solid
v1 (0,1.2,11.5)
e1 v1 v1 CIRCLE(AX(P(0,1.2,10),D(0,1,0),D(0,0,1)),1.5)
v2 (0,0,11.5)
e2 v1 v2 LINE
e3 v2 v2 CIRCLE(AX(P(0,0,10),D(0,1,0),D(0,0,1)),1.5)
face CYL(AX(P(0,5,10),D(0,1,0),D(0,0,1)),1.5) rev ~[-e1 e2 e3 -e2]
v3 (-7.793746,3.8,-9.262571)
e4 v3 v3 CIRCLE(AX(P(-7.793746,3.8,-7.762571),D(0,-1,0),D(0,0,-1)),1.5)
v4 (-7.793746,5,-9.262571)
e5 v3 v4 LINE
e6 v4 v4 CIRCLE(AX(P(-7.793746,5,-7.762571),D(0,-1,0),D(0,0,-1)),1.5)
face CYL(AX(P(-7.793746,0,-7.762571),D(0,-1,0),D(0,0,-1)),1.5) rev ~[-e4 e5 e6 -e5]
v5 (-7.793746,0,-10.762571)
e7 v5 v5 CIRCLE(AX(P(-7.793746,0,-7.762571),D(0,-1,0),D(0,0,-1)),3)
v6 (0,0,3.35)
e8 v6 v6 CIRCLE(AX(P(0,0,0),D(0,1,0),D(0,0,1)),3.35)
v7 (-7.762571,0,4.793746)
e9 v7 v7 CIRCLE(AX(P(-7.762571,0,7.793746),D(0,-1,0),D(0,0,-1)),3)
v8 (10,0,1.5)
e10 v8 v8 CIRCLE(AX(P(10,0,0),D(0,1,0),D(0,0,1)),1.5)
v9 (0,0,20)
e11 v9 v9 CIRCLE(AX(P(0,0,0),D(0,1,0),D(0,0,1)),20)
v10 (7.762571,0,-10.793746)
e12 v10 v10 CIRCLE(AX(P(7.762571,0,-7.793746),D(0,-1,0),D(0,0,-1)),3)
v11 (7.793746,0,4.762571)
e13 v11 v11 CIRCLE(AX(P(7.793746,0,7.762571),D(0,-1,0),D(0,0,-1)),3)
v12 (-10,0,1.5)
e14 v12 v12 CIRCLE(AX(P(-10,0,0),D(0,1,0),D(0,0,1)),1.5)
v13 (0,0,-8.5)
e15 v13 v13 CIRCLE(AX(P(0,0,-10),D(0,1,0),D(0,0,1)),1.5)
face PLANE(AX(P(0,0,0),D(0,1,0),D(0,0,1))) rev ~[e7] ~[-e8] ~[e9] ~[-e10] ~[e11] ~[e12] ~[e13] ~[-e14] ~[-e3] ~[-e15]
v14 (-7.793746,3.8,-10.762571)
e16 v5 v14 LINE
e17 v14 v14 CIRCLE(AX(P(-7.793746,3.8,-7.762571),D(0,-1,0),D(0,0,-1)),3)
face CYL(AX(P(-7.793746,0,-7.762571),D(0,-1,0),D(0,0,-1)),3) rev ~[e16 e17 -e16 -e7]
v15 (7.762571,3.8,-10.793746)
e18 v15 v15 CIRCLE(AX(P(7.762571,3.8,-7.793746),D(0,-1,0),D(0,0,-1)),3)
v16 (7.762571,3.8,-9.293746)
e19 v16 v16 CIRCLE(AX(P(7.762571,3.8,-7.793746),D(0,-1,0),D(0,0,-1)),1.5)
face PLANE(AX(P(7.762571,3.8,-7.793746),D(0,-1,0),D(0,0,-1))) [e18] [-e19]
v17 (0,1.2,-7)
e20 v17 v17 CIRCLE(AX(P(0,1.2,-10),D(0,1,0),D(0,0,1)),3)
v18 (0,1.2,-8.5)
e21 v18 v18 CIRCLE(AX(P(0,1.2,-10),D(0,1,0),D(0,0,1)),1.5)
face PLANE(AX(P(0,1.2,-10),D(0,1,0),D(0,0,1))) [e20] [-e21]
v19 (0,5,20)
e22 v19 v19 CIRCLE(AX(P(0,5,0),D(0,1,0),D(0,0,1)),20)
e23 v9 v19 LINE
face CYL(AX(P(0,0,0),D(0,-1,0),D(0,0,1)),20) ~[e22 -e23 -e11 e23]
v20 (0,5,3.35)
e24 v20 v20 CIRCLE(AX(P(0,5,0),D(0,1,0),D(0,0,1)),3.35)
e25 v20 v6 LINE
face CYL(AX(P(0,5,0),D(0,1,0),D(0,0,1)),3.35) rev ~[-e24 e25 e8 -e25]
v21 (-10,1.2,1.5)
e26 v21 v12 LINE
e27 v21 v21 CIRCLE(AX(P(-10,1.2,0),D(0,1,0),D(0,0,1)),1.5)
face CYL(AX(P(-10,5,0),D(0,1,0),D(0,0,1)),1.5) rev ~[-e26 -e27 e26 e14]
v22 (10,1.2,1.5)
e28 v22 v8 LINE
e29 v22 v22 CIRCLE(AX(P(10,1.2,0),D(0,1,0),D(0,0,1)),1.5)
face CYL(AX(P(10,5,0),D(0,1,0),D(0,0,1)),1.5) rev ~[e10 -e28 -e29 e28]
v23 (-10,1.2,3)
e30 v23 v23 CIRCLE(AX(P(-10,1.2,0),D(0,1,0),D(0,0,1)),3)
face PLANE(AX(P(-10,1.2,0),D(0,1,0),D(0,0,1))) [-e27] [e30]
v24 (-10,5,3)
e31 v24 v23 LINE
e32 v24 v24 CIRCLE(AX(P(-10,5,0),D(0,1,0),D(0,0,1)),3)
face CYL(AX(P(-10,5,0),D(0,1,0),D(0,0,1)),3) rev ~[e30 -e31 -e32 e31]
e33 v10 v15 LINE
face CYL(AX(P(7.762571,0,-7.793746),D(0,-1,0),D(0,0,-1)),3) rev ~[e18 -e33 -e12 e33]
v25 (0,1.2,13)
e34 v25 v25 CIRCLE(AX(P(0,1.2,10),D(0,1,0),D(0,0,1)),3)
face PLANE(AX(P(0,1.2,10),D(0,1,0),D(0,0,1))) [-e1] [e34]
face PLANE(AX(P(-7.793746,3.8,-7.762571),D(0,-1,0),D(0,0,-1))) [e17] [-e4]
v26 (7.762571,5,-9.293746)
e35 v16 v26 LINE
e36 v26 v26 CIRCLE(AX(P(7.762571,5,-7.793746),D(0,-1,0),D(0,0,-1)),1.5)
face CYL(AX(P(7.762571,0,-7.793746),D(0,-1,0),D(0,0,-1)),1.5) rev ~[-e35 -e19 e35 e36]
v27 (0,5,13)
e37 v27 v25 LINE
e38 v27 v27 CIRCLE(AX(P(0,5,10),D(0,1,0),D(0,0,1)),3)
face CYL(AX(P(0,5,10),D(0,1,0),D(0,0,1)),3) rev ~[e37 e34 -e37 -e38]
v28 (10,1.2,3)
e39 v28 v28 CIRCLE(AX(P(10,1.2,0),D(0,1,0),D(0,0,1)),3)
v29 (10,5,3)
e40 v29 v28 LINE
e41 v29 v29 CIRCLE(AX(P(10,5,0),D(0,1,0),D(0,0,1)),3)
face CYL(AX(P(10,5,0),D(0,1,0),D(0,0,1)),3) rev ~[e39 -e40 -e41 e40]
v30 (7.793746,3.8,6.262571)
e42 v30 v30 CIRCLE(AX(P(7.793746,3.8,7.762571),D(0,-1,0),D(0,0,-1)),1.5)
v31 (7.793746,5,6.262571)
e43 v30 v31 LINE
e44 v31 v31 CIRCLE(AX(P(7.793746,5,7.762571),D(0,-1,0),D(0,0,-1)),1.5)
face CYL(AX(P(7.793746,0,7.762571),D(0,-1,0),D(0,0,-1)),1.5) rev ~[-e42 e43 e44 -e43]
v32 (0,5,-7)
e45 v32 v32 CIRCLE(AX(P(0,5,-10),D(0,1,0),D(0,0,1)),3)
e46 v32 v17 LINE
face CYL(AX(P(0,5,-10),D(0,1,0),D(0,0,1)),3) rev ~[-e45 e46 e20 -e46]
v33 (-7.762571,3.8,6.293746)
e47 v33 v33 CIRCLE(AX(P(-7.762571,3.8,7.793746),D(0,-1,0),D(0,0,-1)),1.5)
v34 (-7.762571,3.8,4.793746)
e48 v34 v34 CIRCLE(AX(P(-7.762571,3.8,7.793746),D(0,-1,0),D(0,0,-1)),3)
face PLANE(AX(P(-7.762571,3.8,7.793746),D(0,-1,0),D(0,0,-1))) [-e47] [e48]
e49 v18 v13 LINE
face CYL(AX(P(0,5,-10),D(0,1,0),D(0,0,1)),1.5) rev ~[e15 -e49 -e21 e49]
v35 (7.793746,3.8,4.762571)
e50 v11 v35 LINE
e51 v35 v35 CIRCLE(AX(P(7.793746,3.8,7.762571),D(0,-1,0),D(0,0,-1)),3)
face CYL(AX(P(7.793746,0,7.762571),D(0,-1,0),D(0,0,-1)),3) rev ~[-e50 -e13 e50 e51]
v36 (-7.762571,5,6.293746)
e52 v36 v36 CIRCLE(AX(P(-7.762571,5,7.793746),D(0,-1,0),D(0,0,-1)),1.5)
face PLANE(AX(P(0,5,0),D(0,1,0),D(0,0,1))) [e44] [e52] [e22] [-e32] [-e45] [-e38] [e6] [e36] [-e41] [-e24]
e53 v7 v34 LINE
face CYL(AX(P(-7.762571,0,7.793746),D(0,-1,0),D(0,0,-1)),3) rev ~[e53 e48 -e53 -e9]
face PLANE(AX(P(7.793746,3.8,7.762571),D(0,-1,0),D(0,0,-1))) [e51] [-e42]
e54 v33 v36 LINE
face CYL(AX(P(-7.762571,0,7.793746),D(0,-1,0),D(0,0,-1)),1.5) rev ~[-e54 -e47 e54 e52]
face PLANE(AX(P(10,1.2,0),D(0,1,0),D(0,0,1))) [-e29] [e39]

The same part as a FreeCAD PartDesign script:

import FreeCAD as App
import Part
import Sketcher
Q = App.Units.Quantity

doc = App.newDocument("Part")
body = doc.addObject("PartDesign::Body", "Body")

# Sketch on XZ plane
sketch1 = body.newObject("Sketcher::SketchObject", "Sketch")
sketch1.AttachmentSupport = (doc.getObject("XZ_Plane"), [""])
sketch1.MapMode = "FlatFace"
sketch1.addGeometry(Part.Circle(App.Vector(0, 0, 0), App.Vector(0, 0, 1), 20), False)
sketch1.addConstraint([
    Sketcher.Constraint("Coincident", 0, 3, -1, 1),
    Sketcher.Constraint("Diameter", 0, Q("40 mm")),
])
pad1 = body.newObject("PartDesign::Pad", "Pad")
pad1.Profile = sketch1
pad1.Length = 5
pad1.Reversed = True

# Sketch on XZ plane
sketch2 = body.newObject("Sketcher::SketchObject", "Sketch001")
sketch2.AttachmentSupport = (doc.getObject("XZ_Plane"), [""])
sketch2.MapMode = "FlatFace"
sketch2.AttachmentOffset = App.Placement(App.Vector(0, 0, -5), App.Rotation())
sketch2.addGeometry(Part.Circle(App.Vector(0, 0, 0), App.Vector(0, 0, 1), 3.4), False)
sketch2.addConstraint([
    Sketcher.Constraint("Coincident", 0, 3, -1, 1),
    Sketcher.Constraint("Diameter", 0, Q("6.7 mm")),
])
pocket1 = body.newObject("PartDesign::Pocket", "Pocket")
pocket1.Profile = sketch2
pocket1.Length = 6
pocket1.Reversed = True

# Sketch on XZ plane
sketch3 = body.newObject("Sketcher::SketchObject", "Sketch002")
sketch3.AttachmentSupport = (doc.getObject("XZ_Plane"), [""])
sketch3.MapMode = "FlatFace"
sketch3.AttachmentOffset = App.Placement(App.Vector(0, 0, -5), App.Rotation())
sketch3.addGeometry([
    Part.Circle(App.Vector(0, -10, 0), App.Vector(0, 0, 1), 1.5),
    Part.Circle(App.Vector(10, 0, 0), App.Vector(0, 0, 1), 1.5),
    Part.Circle(App.Vector(0, 10, 0), App.Vector(0, 0, 1), 1.5),
    Part.Circle(App.Vector(-10, 0, 0), App.Vector(0, 0, 1), 1.5),
], False)
sketch3.addConstraint([
    Sketcher.Constraint("Equal", 0, 1),
    Sketcher.Constraint("Equal", 1, 2),
    Sketcher.Constraint("Equal", 2, 3),
    Sketcher.Constraint("Symmetric", 0, 3, 2, 3, -1, 1),
    Sketcher.Constraint("Symmetric", 1, 3, 3, 3, -1, 1),
    Sketcher.Constraint("PointOnObject", 0, 3, -2),
    Sketcher.Constraint("PointOnObject", 1, 3, -1),
    Sketcher.Constraint("Diameter", 0, Q("3 mm")),
    Sketcher.Constraint("DistanceY", 0, 3, -1, 1, Q("10 mm")),
    Sketcher.Constraint("DistanceX", -1, 1, 1, 3, Q("10 mm")),
])
pocket2 = body.newObject("PartDesign::Pocket", "Pocket001")
pocket2.Profile = sketch3
pocket2.Length = 6
pocket2.Reversed = True

# Sketch on XZ plane
sketch4 = body.newObject("Sketcher::SketchObject", "Sketch003")
sketch4.AttachmentSupport = (doc.getObject("XZ_Plane"), [""])
sketch4.MapMode = "FlatFace"
sketch4.AttachmentOffset = App.Placement(App.Vector(0, 0, -5), App.Rotation())
sketch4.addGeometry([
    Part.Circle(App.Vector(0, -10, 0), App.Vector(0, 0, 1), 3),
    Part.Circle(App.Vector(10, 0, 0), App.Vector(0, 0, 1), 3),
    Part.Circle(App.Vector(0, 10, 0), App.Vector(0, 0, 1), 3),
    Part.Circle(App.Vector(-10, 0, 0), App.Vector(0, 0, 1), 3),
], False)
sketch4.addConstraint([
    Sketcher.Constraint("Equal", 0, 1),
    Sketcher.Constraint("Equal", 1, 2),
    Sketcher.Constraint("Equal", 2, 3),
    Sketcher.Constraint("Symmetric", 0, 3, 2, 3, -1, 1),
    Sketcher.Constraint("Symmetric", 1, 3, 3, 3, -1, 1),
    Sketcher.Constraint("PointOnObject", 0, 3, -2),
    Sketcher.Constraint("PointOnObject", 1, 3, -1),
    Sketcher.Constraint("Diameter", 0, Q("6 mm")),
    Sketcher.Constraint("DistanceY", 0, 3, -1, 1, Q("10 mm")),
    Sketcher.Constraint("DistanceX", -1, 1, 1, 3, Q("10 mm")),
])
pocket3 = body.newObject("PartDesign::Pocket", "Pocket002")
pocket3.Profile = sketch4
pocket3.Length = 3.8
pocket3.Reversed = True

# Sketch on XZ plane
sketch5 = body.newObject("Sketcher::SketchObject", "Sketch004")
sketch5.AttachmentSupport = (doc.getObject("XZ_Plane"), [""])
sketch5.MapMode = "FlatFace"
sketch5.addGeometry([
    Part.Circle(App.Vector(7.8, 7.8, 0), App.Vector(0, 0, 1), 1.5),
    Part.Circle(App.Vector(7.8, -7.8, 0), App.Vector(0, 0, 1), 1.5),
    Part.Circle(App.Vector(-7.8, -7.8, 0), App.Vector(0, 0, 1), 1.5),
    Part.Circle(App.Vector(-7.8, 7.8, 0), App.Vector(0, 0, 1), 1.5),
], False)
sketch5.addConstraint([
    Sketcher.Constraint("Equal", 0, 1),
    Sketcher.Constraint("Equal", 1, 2),
    Sketcher.Constraint("Equal", 2, 3),
    Sketcher.Constraint("Symmetric", 0, 3, 2, 3, -1, 1),
    Sketcher.Constraint("Symmetric", 1, 3, 3, 3, -1, 1),
    Sketcher.Constraint("Diameter", 0, Q("3 mm")),
    Sketcher.Constraint("DistanceY", -1, 1, 0, 3, Q("7.762571 mm")),
    Sketcher.Constraint("DistanceX", -1, 1, 1, 3, Q("7.762571 mm")),
    Sketcher.Constraint("DistanceX", -1, 1, 0, 3, Q("7.793746 mm")),
    Sketcher.Constraint("DistanceY", 1, 3, -1, 1, Q("7.793746 mm")),
])
pocket4 = body.newObject("PartDesign::Pocket", "Pocket003")
pocket4.Profile = sketch5
pocket4.Type = "ThroughAll"

# Sketch on XZ plane
sketch6 = body.newObject("Sketcher::SketchObject", "Sketch005")
sketch6.AttachmentSupport = (doc.getObject("XZ_Plane"), [""])
sketch6.MapMode = "FlatFace"
sketch6.addGeometry([
    Part.Circle(App.Vector(7.8, 7.8, 0), App.Vector(0, 0, 1), 3),
    Part.Circle(App.Vector(7.8, -7.8, 0), App.Vector(0, 0, 1), 3),
    Part.Circle(App.Vector(-7.8, -7.8, 0), App.Vector(0, 0, 1), 3),
    Part.Circle(App.Vector(-7.8, 7.8, 0), App.Vector(0, 0, 1), 3),
], False)
sketch6.addConstraint([
    Sketcher.Constraint("Equal", 0, 1),
    Sketcher.Constraint("Equal", 1, 2),
    Sketcher.Constraint("Equal", 2, 3),
    Sketcher.Constraint("Symmetric", 0, 3, 2, 3, -1, 1),
    Sketcher.Constraint("Symmetric", 1, 3, 3, 3, -1, 1),
    Sketcher.Constraint("Diameter", 0, Q("6 mm")),
    Sketcher.Constraint("DistanceY", -1, 1, 0, 3, Q("7.762571 mm")),
    Sketcher.Constraint("DistanceX", -1, 1, 1, 3, Q("7.762571 mm")),
    Sketcher.Constraint("DistanceX", -1, 1, 0, 3, Q("7.793746 mm")),
    Sketcher.Constraint("DistanceY", 1, 3, -1, 1, Q("7.793746 mm")),
])
pocket5 = body.newObject("PartDesign::Pocket", "Pocket004")
pocket5.Profile = sketch6
pocket5.Length = 3.8

doc.recompute()
